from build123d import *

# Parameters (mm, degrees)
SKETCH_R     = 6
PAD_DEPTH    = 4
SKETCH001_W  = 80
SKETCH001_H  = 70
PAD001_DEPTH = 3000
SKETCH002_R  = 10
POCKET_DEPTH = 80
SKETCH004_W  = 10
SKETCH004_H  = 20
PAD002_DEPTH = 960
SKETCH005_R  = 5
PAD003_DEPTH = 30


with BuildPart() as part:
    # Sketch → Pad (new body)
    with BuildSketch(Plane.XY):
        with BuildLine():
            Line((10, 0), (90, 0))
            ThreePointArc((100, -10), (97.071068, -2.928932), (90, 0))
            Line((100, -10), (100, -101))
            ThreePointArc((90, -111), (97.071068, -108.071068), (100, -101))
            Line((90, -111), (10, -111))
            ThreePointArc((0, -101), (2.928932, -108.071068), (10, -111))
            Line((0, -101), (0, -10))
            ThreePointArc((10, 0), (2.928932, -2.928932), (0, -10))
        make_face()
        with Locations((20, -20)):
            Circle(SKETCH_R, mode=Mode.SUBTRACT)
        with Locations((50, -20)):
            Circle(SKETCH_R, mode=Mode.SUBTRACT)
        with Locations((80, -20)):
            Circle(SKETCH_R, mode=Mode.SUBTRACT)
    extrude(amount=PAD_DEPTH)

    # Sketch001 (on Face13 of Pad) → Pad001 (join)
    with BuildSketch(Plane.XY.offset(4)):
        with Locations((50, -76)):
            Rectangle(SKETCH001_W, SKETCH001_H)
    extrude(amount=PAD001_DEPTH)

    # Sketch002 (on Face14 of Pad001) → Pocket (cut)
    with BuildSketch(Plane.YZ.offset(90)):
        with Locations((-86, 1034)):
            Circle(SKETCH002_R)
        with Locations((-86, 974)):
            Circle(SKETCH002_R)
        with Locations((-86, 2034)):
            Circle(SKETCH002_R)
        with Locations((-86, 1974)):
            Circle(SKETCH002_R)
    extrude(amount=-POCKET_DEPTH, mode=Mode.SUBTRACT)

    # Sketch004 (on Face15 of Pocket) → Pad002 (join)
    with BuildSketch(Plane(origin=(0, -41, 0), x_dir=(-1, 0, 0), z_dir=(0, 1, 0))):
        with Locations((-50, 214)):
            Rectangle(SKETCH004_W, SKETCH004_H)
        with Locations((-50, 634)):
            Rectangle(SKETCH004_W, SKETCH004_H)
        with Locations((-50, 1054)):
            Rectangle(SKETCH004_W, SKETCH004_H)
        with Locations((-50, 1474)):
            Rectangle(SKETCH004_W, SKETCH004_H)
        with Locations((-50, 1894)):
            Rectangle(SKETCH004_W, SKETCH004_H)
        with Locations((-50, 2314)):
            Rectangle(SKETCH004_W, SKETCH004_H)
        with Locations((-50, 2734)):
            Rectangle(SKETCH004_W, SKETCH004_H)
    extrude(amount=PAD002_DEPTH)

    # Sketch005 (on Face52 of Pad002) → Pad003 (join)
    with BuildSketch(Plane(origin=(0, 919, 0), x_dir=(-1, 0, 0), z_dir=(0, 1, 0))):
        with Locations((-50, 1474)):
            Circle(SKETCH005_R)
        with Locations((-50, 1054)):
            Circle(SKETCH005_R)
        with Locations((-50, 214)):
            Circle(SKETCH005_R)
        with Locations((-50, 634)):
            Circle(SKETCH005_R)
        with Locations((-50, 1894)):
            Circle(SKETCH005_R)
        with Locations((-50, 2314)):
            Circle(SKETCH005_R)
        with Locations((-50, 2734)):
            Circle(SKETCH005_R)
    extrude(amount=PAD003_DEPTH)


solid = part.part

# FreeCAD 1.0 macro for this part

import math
import FreeCAD as App
import Part
import Sketcher

V = App.Vector
Q = App.Units.Quantity

doc = App.newDocument("Part")
body = doc.addObject("PartDesign::Body", "Body")

sketch1 = body.newObject("Sketcher::SketchObject", "Sketch")
sketch1.AttachmentSupport = (doc.getObject("XY_Plane"), [""])
sketch1.MapMode = "FlatFace"
sketch1.addGeometry(Part.LineSegment(V(90, 0, 0), V(10, 0, 0)), False)
sketch1.addGeometry(Part.ArcOfCircle(Part.Circle(V(10, -10, 0), V(0, 0, 1), 10), math.radians(90), math.radians(180)), False)
sketch1.addGeometry(Part.LineSegment(V(0, -10, 0), V(0, -101, 0)), False)
sketch1.addGeometry(Part.ArcOfCircle(Part.Circle(V(10, -101, 0), V(0, 0, 1), 10), math.radians(180), math.radians(270)), False)
sketch1.addGeometry(Part.LineSegment(V(10, -111, 0), V(90, -111, 0)), False)
sketch1.addGeometry(Part.ArcOfCircle(Part.Circle(V(90, -101, 0), V(0, 0, 1), 10), math.radians(-90), math.radians(0)), False)
sketch1.addGeometry(Part.LineSegment(V(100, -101, 0), V(100, -10, 0)), False)
sketch1.addGeometry(Part.ArcOfCircle(Part.Circle(V(90, -10, 0), V(0, 0, 1), 10), math.radians(0), math.radians(90)), False)
sketch1.addGeometry(Part.Circle(V(80, -20, 0), V(0, 0, 1), 6), False)
sketch1.addGeometry(Part.Circle(V(50, -20, 0), V(0, 0, 1), 6), False)
sketch1.addGeometry(Part.Circle(V(20, -20, 0), V(0, 0, 1), 6), False)
sketch1.addConstraint(Sketcher.Constraint("Tangent", 0, 2, 1, 1))
sketch1.addConstraint(Sketcher.Constraint("Tangent", 1, 2, 2, 1))
sketch1.addConstraint(Sketcher.Constraint("Tangent", 2, 2, 3, 1))
sketch1.addConstraint(Sketcher.Constraint("Tangent", 3, 2, 4, 1))
sketch1.addConstraint(Sketcher.Constraint("Tangent", 4, 2, 5, 1))
sketch1.addConstraint(Sketcher.Constraint("Tangent", 5, 2, 6, 1))
sketch1.addConstraint(Sketcher.Constraint("Tangent", 6, 2, 7, 1))
sketch1.addConstraint(Sketcher.Constraint("Tangent", 7, 2, 0, 1))
sketch1.addConstraint(Sketcher.Constraint("Horizontal", 0))
sketch1.addConstraint(Sketcher.Constraint("Vertical", 2))
sketch1.addConstraint(Sketcher.Constraint("Horizontal", 4))
sketch1.addConstraint(Sketcher.Constraint("Vertical", 6))
sketch1.addConstraint(Sketcher.Constraint("Equal", 1, 3))
sketch1.addConstraint(Sketcher.Constraint("Equal", 3, 5))
sketch1.addConstraint(Sketcher.Constraint("Equal", 5, 7))
sketch1.addConstraint(Sketcher.Constraint("Equal", 8, 9))
sketch1.addConstraint(Sketcher.Constraint("Equal", 9, 10))
sketch1.addConstraint(Sketcher.Constraint("PointOnObject", 0, 2, -1))
sketch1.addConstraint(Sketcher.Constraint("PointOnObject", 1, 2, -2))
sketch1.addConstraint(Sketcher.Constraint("Horizontal", 8, 3, 9, 3))
sketch1.addConstraint(Sketcher.Constraint("Horizontal", 9, 3, 10, 3))
sketch1.addConstraint(Sketcher.Constraint("Diameter", 8, Q("12 mm")))
sketch1.addConstraint(Sketcher.Constraint("Radius", 1, Q("9.999999 mm")))
sketch1.addConstraint(Sketcher.Constraint("DistanceX", 0, 2, 0, 1, Q("80 mm")))
sketch1.addConstraint(Sketcher.Constraint("DistanceY", 2, 2, 2, 1, Q("91 mm")))
sketch1.addConstraint(Sketcher.Constraint("DistanceX", -1, 1, 8, 3, Q("80 mm")))
sketch1.addConstraint(Sketcher.Constraint("DistanceY", 8, 3, -1, 1, Q("20 mm")))
sketch1.addConstraint(Sketcher.Constraint("DistanceX", -1, 1, 9, 3, Q("50 mm")))
sketch1.addConstraint(Sketcher.Constraint("DistanceX", -1, 1, 10, 3, Q("20 mm")))
pad1 = body.newObject("PartDesign::Pad", "Pad")
pad1.Profile = sketch1
pad1.Length = 4

sketch2 = body.newObject("Sketcher::SketchObject", "Sketch001")
sketch2.AttachmentSupport = (doc.getObject("XY_Plane"), [""])
sketch2.MapMode = "FlatFace"
sketch2.AttachmentOffset = App.Placement(V(0, 0, 4), App.Rotation())
sketch2.addGeometry(Part.LineSegment(V(10, -41, 0), V(10, -111, 0)), False)
sketch2.addGeometry(Part.LineSegment(V(10, -111, 0), V(90, -111, 0)), False)
sketch2.addGeometry(Part.LineSegment(V(90, -111, 0), V(90, -41, 0)), False)
sketch2.addGeometry(Part.LineSegment(V(90, -41, 0), V(10, -41, 0)), False)
sketch2.addConstraint(Sketcher.Constraint("Coincident", 0, 2, 1, 1))
sketch2.addConstraint(Sketcher.Constraint("Coincident", 1, 2, 2, 1))
sketch2.addConstraint(Sketcher.Constraint("Coincident", 2, 2, 3, 1))
sketch2.addConstraint(Sketcher.Constraint("Coincident", 3, 2, 0, 1))
sketch2.addConstraint(Sketcher.Constraint("Vertical", 0))
sketch2.addConstraint(Sketcher.Constraint("Horizontal", 1))
sketch2.addConstraint(Sketcher.Constraint("Vertical", 2))
sketch2.addConstraint(Sketcher.Constraint("Horizontal", 3))
sketch2.addConstraint(Sketcher.Constraint("DistanceX", 1, 1, 1, 2, Q("80 mm")))
sketch2.addConstraint(Sketcher.Constraint("DistanceY", 0, 2, 0, 1, Q("70 mm")))
sketch2.addConstraint(Sketcher.Constraint("DistanceX", -1, 1, 0, 2, Q("10 mm")))
sketch2.addConstraint(Sketcher.Constraint("DistanceY", 0, 2, -1, 1, Q("111 mm")))
pad2 = body.newObject("PartDesign::Pad", "Pad001")
pad2.Profile = sketch2
pad2.Length = 3000

sketch3 = body.newObject("Sketcher::SketchObject", "Sketch002")
sketch3.AttachmentSupport = (doc.getObject("YZ_Plane"), [""])
sketch3.MapMode = "FlatFace"
sketch3.AttachmentOffset = App.Placement(V(0, 0, 90), App.Rotation())
sketch3.addGeometry(Part.Circle(V(-86, 1034, 0), V(0, 0, 1), 10), False)
sketch3.addGeometry(Part.Circle(V(-86, 974, 0), V(0, 0, 1), 10), False)
sketch3.addGeometry(Part.Circle(V(-86, 2034, 0), V(0, 0, 1), 10), False)
sketch3.addGeometry(Part.Circle(V(-86, 1974, 0), V(0, 0, 1), 10), False)
sketch3.addConstraint(Sketcher.Constraint("Equal", 0, 1))
sketch3.addConstraint(Sketcher.Constraint("Equal", 1, 2))
sketch3.addConstraint(Sketcher.Constraint("Equal", 2, 3))
sketch3.addConstraint(Sketcher.Constraint("Vertical", 0, 3, 1, 3))
sketch3.addConstraint(Sketcher.Constraint("Vertical", 1, 3, 2, 3))
sketch3.addConstraint(Sketcher.Constraint("Vertical", 2, 3, 3, 3))
sketch3.addConstraint(Sketcher.Constraint("Diameter", 0, Q("20 mm")))
sketch3.addConstraint(Sketcher.Constraint("DistanceX", 0, 3, -1, 1, Q("86 mm")))
sketch3.addConstraint(Sketcher.Constraint("DistanceY", -1, 1, 0, 3, Q("1034 mm")))
sketch3.addConstraint(Sketcher.Constraint("DistanceY", -1, 1, 1, 3, Q("974 mm")))
sketch3.addConstraint(Sketcher.Constraint("DistanceY", -1, 1, 2, 3, Q("2034 mm")))
sketch3.addConstraint(Sketcher.Constraint("DistanceY", -1, 1, 3, 3, Q("1974 mm")))
pocket1 = body.newObject("PartDesign::Pocket", "Pocket")
pocket1.Profile = sketch3
pocket1.Length = 80

sketch4 = body.newObject("Sketcher::SketchObject", "Sketch003")
sketch4.AttachmentSupport = (doc.getObject("XZ_Plane"), [""])
sketch4.MapMode = "FlatFace"
sketch4.AttachmentOffset = App.Placement(V(0, 0, 41), App.Rotation())
sketch4.addGeometry(Part.LineSegment(V(55, 224, 0), V(55, 204, 0)), False)
sketch4.addGeometry(Part.LineSegment(V(55, 204, 0), V(45, 204, 0)), False)
sketch4.addGeometry(Part.LineSegment(V(45, 204, 0), V(45, 224, 0)), False)
sketch4.addGeometry(Part.LineSegment(V(45, 224, 0), V(55, 224, 0)), False)
sketch4.addGeometry(Part.LineSegment(V(55, 644, 0), V(55, 624, 0)), False)
sketch4.addGeometry(Part.LineSegment(V(55, 624, 0), V(45, 624, 0)), False)
sketch4.addGeometry(Part.LineSegment(V(45, 624, 0), V(45, 644, 0)), False)
sketch4.addGeometry(Part.LineSegment(V(45, 644, 0), V(55, 644, 0)), False)
sketch4.addGeometry(Part.LineSegment(V(55, 1064, 0), V(55, 1044, 0)), False)
sketch4.addGeometry(Part.LineSegment(V(55, 1044, 0), V(45, 1044, 0)), False)
sketch4.addGeometry(Part.LineSegment(V(45, 1044, 0), V(45, 1064, 0)), False)
sketch4.addGeometry(Part.LineSegment(V(45, 1064, 0), V(55, 1064, 0)), False)
sketch4.addGeometry(Part.LineSegment(V(55, 1484, 0), V(55, 1464, 0)), False)
sketch4.addGeometry(Part.LineSegment(V(55, 1464, 0), V(45, 1464, 0)), False)
sketch4.addGeometry(Part.LineSegment(V(45, 1464, 0), V(45, 1484, 0)), False)
sketch4.addGeometry(Part.LineSegment(V(45, 1484, 0), V(55, 1484, 0)), False)
sketch4.addGeometry(Part.LineSegment(V(55, 1904, 0), V(55, 1884, 0)), False)
sketch4.addGeometry(Part.LineSegment(V(55, 1884, 0), V(45, 1884, 0)), False)
sketch4.addGeometry(Part.LineSegment(V(45, 1884, 0), V(45, 1904, 0)), False)
sketch4.addGeometry(Part.LineSegment(V(45, 1904, 0), V(55, 1904, 0)), False)
sketch4.addGeometry(Part.LineSegment(V(55, 2324, 0), V(55, 2304, 0)), False)
sketch4.addGeometry(Part.LineSegment(V(55, 2304, 0), V(45, 2304, 0)), False)
sketch4.addGeometry(Part.LineSegment(V(45, 2304, 0), V(45, 2324, 0)), False)
sketch4.addGeometry(Part.LineSegment(V(45, 2324, 0), V(55, 2324, 0)), False)
sketch4.addGeometry(Part.LineSegment(V(55, 2744, 0), V(55, 2724, 0)), False)
sketch4.addGeometry(Part.LineSegment(V(55, 2724, 0), V(45, 2724, 0)), False)
sketch4.addGeometry(Part.LineSegment(V(45, 2724, 0), V(45, 2744, 0)), False)
sketch4.addGeometry(Part.LineSegment(V(45, 2744, 0), V(55, 2744, 0)), False)
sketch4.addConstraint(Sketcher.Constraint("Coincident", 0, 2, 1, 1))
sketch4.addConstraint(Sketcher.Constraint("Coincident", 1, 2, 2, 1))
sketch4.addConstraint(Sketcher.Constraint("Coincident", 2, 2, 3, 1))
sketch4.addConstraint(Sketcher.Constraint("Coincident", 3, 2, 0, 1))
sketch4.addConstraint(Sketcher.Constraint("Coincident", 4, 2, 5, 1))
sketch4.addConstraint(Sketcher.Constraint("Coincident", 5, 2, 6, 1))
sketch4.addConstraint(Sketcher.Constraint("Coincident", 6, 2, 7, 1))
sketch4.addConstraint(Sketcher.Constraint("Coincident", 7, 2, 4, 1))
sketch4.addConstraint(Sketcher.Constraint("Coincident", 8, 2, 9, 1))
sketch4.addConstraint(Sketcher.Constraint("Coincident", 9, 2, 10, 1))
sketch4.addConstraint(Sketcher.Constraint("Coincident", 10, 2, 11, 1))
sketch4.addConstraint(Sketcher.Constraint("Coincident", 11, 2, 8, 1))
sketch4.addConstraint(Sketcher.Constraint("Coincident", 12, 2, 13, 1))
sketch4.addConstraint(Sketcher.Constraint("Coincident", 13, 2, 14, 1))
sketch4.addConstraint(Sketcher.Constraint("Coincident", 14, 2, 15, 1))
sketch4.addConstraint(Sketcher.Constraint("Coincident", 15, 2, 12, 1))
sketch4.addConstraint(Sketcher.Constraint("Coincident", 16, 2, 17, 1))
sketch4.addConstraint(Sketcher.Constraint("Coincident", 17, 2, 18, 1))
sketch4.addConstraint(Sketcher.Constraint("Coincident", 18, 2, 19, 1))
sketch4.addConstraint(Sketcher.Constraint("Coincident", 19, 2, 16, 1))
sketch4.addConstraint(Sketcher.Constraint("Coincident", 20, 2, 21, 1))
sketch4.addConstraint(Sketcher.Constraint("Coincident", 21, 2, 22, 1))
sketch4.addConstraint(Sketcher.Constraint("Coincident", 22, 2, 23, 1))
sketch4.addConstraint(Sketcher.Constraint("Coincident", 23, 2, 20, 1))
sketch4.addConstraint(Sketcher.Constraint("Coincident", 24, 2, 25, 1))
sketch4.addConstraint(Sketcher.Constraint("Coincident", 25, 2, 26, 1))
sketch4.addConstraint(Sketcher.Constraint("Coincident", 26, 2, 27, 1))
sketch4.addConstraint(Sketcher.Constraint("Coincident", 27, 2, 24, 1))
sketch4.addConstraint(Sketcher.Constraint("Vertical", 0))
sketch4.addConstraint(Sketcher.Constraint("Horizontal", 1))
sketch4.addConstraint(Sketcher.Constraint("Vertical", 2))
sketch4.addConstraint(Sketcher.Constraint("Horizontal", 3))
sketch4.addConstraint(Sketcher.Constraint("Vertical", 4))
sketch4.addConstraint(Sketcher.Constraint("Horizontal", 5))
sketch4.addConstraint(Sketcher.Constraint("Vertical", 6))
sketch4.addConstraint(Sketcher.Constraint("Horizontal", 7))
sketch4.addConstraint(Sketcher.Constraint("Vertical", 8))
sketch4.addConstraint(Sketcher.Constraint("Horizontal", 9))
sketch4.addConstraint(Sketcher.Constraint("Vertical", 10))
sketch4.addConstraint(Sketcher.Constraint("Horizontal", 11))
sketch4.addConstraint(Sketcher.Constraint("Vertical", 12))
sketch4.addConstraint(Sketcher.Constraint("Horizontal", 13))
sketch4.addConstraint(Sketcher.Constraint("Vertical", 14))
sketch4.addConstraint(Sketcher.Constraint("Horizontal", 15))
sketch4.addConstraint(Sketcher.Constraint("Vertical", 16))
sketch4.addConstraint(Sketcher.Constraint("Horizontal", 17))
sketch4.addConstraint(Sketcher.Constraint("Vertical", 18))
sketch4.addConstraint(Sketcher.Constraint("Horizontal", 19))
sketch4.addConstraint(Sketcher.Constraint("Vertical", 20))
sketch4.addConstraint(Sketcher.Constraint("Horizontal", 21))
sketch4.addConstraint(Sketcher.Constraint("Vertical", 22))
sketch4.addConstraint(Sketcher.Constraint("Horizontal", 23))
sketch4.addConstraint(Sketcher.Constraint("Vertical", 24))
sketch4.addConstraint(Sketcher.Constraint("Horizontal", 25))
sketch4.addConstraint(Sketcher.Constraint("Vertical", 26))
sketch4.addConstraint(Sketcher.Constraint("Horizontal", 27))
sketch4.addConstraint(Sketcher.Constraint("Vertical", 3, 2, 4, 2))
sketch4.addConstraint(Sketcher.Constraint("Vertical", 2, 2, 5, 2))
sketch4.addConstraint(Sketcher.Constraint("Vertical", 7, 2, 8, 2))
sketch4.addConstraint(Sketcher.Constraint("Vertical", 6, 2, 9, 2))
sketch4.addConstraint(Sketcher.Constraint("Vertical", 11, 2, 12, 2))
sketch4.addConstraint(Sketcher.Constraint("Vertical", 10, 2, 13, 2))
sketch4.addConstraint(Sketcher.Constraint("Vertical", 15, 2, 16, 2))
sketch4.addConstraint(Sketcher.Constraint("Vertical", 14, 2, 17, 2))
sketch4.addConstraint(Sketcher.Constraint("Vertical", 19, 2, 20, 2))
sketch4.addConstraint(Sketcher.Constraint("Vertical", 18, 2, 21, 2))
sketch4.addConstraint(Sketcher.Constraint("Vertical", 23, 2, 24, 2))
sketch4.addConstraint(Sketcher.Constraint("Vertical", 22, 2, 25, 2))
sketch4.addConstraint(Sketcher.Constraint("Equal", 2, 4))
sketch4.addConstraint(Sketcher.Constraint("Equal", 6, 8))
sketch4.addConstraint(Sketcher.Constraint("Equal", 10, 12))
sketch4.addConstraint(Sketcher.Constraint("Equal", 14, 16))
sketch4.addConstraint(Sketcher.Constraint("Equal", 18, 20))
sketch4.addConstraint(Sketcher.Constraint("Equal", 22, 24))
sketch4.addConstraint(Sketcher.Constraint("DistanceX", 1, 2, 1, 1, Q("10 mm")))
sketch4.addConstraint(Sketcher.Constraint("DistanceY", 0, 2, 0, 1, Q("20 mm")))
sketch4.addConstraint(Sketcher.Constraint("DistanceX", -1, 1, 0, 2, Q("55 mm")))
sketch4.addConstraint(Sketcher.Constraint("DistanceY", -1, 1, 0, 2, Q("204 mm")))
sketch4.addConstraint(Sketcher.Constraint("DistanceY", -1, 1, 4, 2, Q("624 mm")))
sketch4.addConstraint(Sketcher.Constraint("DistanceY", -1, 1, 8, 2, Q("1044 mm")))
sketch4.addConstraint(Sketcher.Constraint("DistanceY", -1, 1, 12, 2, Q("1464 mm")))
sketch4.addConstraint(Sketcher.Constraint("DistanceY", -1, 1, 16, 2, Q("1884 mm")))
sketch4.addConstraint(Sketcher.Constraint("DistanceY", -1, 1, 20, 2, Q("2304 mm")))
sketch4.addConstraint(Sketcher.Constraint("DistanceY", -1, 1, 24, 2, Q("2724 mm")))
pad3 = body.newObject("PartDesign::Pad", "Pad002")
pad3.Profile = sketch4
pad3.Length = 960
pad3.Reversed = True

sketch5 = body.newObject("Sketcher::SketchObject", "Sketch004")
sketch5.AttachmentSupport = (doc.getObject("XZ_Plane"), [""])
sketch5.MapMode = "FlatFace"
sketch5.AttachmentOffset = App.Placement(V(0, 0, -919), App.Rotation())
sketch5.addGeometry(Part.Circle(V(50, 1474, 0), V(0, 0, 1), 5), False)
sketch5.addGeometry(Part.Circle(V(50, 1054, 0), V(0, 0, 1), 5), False)
sketch5.addGeometry(Part.Circle(V(50, 214, 0), V(0, 0, 1), 5), False)
sketch5.addGeometry(Part.Circle(V(50, 634, 0), V(0, 0, 1), 5), False)
sketch5.addGeometry(Part.Circle(V(50, 1894, 0), V(0, 0, 1), 5), False)
sketch5.addGeometry(Part.Circle(V(50, 2314, 0), V(0, 0, 1), 5), False)
sketch5.addGeometry(Part.Circle(V(50, 2734, 0), V(0, 0, 1), 5), False)
sketch5.addConstraint(Sketcher.Constraint("Equal", 0, 1))
sketch5.addConstraint(Sketcher.Constraint("Equal", 1, 2))
sketch5.addConstraint(Sketcher.Constraint("Equal", 2, 3))
sketch5.addConstraint(Sketcher.Constraint("Equal", 3, 4))
sketch5.addConstraint(Sketcher.Constraint("Equal", 4, 5))
sketch5.addConstraint(Sketcher.Constraint("Equal", 5, 6))
sketch5.addConstraint(Sketcher.Constraint("Vertical", 0, 3, 1, 3))
sketch5.addConstraint(Sketcher.Constraint("Vertical", 1, 3, 2, 3))
sketch5.addConstraint(Sketcher.Constraint("Vertical", 2, 3, 3, 3))
sketch5.addConstraint(Sketcher.Constraint("Vertical", 3, 3, 4, 3))
sketch5.addConstraint(Sketcher.Constraint("Vertical", 4, 3, 5, 3))
sketch5.addConstraint(Sketcher.Constraint("Vertical", 5, 3, 6, 3))
sketch5.addConstraint(Sketcher.Constraint("Diameter", 0, Q("10 mm")))
sketch5.addConstraint(Sketcher.Constraint("DistanceX", -1, 1, 0, 3, Q("50 mm")))
sketch5.addConstraint(Sketcher.Constraint("DistanceY", -1, 1, 0, 3, Q("1474 mm")))
sketch5.addConstraint(Sketcher.Constraint("DistanceY", -1, 1, 1, 3, Q("1054 mm")))
sketch5.addConstraint(Sketcher.Constraint("DistanceY", -1, 1, 2, 3, Q("214 mm")))
sketch5.addConstraint(Sketcher.Constraint("DistanceY", -1, 1, 3, 3, Q("634 mm")))
sketch5.addConstraint(Sketcher.Constraint("DistanceY", -1, 1, 4, 3, Q("1894 mm")))
sketch5.addConstraint(Sketcher.Constraint("DistanceY", -1, 1, 5, 3, Q("2314 mm")))
sketch5.addConstraint(Sketcher.Constraint("DistanceY", -1, 1, 6, 3, Q("2734 mm")))
pad4 = body.newObject("PartDesign::Pad", "Pad003")
pad4.Profile = sketch5
pad4.Length = 30
pad4.Reversed = True

doc.recompute()
